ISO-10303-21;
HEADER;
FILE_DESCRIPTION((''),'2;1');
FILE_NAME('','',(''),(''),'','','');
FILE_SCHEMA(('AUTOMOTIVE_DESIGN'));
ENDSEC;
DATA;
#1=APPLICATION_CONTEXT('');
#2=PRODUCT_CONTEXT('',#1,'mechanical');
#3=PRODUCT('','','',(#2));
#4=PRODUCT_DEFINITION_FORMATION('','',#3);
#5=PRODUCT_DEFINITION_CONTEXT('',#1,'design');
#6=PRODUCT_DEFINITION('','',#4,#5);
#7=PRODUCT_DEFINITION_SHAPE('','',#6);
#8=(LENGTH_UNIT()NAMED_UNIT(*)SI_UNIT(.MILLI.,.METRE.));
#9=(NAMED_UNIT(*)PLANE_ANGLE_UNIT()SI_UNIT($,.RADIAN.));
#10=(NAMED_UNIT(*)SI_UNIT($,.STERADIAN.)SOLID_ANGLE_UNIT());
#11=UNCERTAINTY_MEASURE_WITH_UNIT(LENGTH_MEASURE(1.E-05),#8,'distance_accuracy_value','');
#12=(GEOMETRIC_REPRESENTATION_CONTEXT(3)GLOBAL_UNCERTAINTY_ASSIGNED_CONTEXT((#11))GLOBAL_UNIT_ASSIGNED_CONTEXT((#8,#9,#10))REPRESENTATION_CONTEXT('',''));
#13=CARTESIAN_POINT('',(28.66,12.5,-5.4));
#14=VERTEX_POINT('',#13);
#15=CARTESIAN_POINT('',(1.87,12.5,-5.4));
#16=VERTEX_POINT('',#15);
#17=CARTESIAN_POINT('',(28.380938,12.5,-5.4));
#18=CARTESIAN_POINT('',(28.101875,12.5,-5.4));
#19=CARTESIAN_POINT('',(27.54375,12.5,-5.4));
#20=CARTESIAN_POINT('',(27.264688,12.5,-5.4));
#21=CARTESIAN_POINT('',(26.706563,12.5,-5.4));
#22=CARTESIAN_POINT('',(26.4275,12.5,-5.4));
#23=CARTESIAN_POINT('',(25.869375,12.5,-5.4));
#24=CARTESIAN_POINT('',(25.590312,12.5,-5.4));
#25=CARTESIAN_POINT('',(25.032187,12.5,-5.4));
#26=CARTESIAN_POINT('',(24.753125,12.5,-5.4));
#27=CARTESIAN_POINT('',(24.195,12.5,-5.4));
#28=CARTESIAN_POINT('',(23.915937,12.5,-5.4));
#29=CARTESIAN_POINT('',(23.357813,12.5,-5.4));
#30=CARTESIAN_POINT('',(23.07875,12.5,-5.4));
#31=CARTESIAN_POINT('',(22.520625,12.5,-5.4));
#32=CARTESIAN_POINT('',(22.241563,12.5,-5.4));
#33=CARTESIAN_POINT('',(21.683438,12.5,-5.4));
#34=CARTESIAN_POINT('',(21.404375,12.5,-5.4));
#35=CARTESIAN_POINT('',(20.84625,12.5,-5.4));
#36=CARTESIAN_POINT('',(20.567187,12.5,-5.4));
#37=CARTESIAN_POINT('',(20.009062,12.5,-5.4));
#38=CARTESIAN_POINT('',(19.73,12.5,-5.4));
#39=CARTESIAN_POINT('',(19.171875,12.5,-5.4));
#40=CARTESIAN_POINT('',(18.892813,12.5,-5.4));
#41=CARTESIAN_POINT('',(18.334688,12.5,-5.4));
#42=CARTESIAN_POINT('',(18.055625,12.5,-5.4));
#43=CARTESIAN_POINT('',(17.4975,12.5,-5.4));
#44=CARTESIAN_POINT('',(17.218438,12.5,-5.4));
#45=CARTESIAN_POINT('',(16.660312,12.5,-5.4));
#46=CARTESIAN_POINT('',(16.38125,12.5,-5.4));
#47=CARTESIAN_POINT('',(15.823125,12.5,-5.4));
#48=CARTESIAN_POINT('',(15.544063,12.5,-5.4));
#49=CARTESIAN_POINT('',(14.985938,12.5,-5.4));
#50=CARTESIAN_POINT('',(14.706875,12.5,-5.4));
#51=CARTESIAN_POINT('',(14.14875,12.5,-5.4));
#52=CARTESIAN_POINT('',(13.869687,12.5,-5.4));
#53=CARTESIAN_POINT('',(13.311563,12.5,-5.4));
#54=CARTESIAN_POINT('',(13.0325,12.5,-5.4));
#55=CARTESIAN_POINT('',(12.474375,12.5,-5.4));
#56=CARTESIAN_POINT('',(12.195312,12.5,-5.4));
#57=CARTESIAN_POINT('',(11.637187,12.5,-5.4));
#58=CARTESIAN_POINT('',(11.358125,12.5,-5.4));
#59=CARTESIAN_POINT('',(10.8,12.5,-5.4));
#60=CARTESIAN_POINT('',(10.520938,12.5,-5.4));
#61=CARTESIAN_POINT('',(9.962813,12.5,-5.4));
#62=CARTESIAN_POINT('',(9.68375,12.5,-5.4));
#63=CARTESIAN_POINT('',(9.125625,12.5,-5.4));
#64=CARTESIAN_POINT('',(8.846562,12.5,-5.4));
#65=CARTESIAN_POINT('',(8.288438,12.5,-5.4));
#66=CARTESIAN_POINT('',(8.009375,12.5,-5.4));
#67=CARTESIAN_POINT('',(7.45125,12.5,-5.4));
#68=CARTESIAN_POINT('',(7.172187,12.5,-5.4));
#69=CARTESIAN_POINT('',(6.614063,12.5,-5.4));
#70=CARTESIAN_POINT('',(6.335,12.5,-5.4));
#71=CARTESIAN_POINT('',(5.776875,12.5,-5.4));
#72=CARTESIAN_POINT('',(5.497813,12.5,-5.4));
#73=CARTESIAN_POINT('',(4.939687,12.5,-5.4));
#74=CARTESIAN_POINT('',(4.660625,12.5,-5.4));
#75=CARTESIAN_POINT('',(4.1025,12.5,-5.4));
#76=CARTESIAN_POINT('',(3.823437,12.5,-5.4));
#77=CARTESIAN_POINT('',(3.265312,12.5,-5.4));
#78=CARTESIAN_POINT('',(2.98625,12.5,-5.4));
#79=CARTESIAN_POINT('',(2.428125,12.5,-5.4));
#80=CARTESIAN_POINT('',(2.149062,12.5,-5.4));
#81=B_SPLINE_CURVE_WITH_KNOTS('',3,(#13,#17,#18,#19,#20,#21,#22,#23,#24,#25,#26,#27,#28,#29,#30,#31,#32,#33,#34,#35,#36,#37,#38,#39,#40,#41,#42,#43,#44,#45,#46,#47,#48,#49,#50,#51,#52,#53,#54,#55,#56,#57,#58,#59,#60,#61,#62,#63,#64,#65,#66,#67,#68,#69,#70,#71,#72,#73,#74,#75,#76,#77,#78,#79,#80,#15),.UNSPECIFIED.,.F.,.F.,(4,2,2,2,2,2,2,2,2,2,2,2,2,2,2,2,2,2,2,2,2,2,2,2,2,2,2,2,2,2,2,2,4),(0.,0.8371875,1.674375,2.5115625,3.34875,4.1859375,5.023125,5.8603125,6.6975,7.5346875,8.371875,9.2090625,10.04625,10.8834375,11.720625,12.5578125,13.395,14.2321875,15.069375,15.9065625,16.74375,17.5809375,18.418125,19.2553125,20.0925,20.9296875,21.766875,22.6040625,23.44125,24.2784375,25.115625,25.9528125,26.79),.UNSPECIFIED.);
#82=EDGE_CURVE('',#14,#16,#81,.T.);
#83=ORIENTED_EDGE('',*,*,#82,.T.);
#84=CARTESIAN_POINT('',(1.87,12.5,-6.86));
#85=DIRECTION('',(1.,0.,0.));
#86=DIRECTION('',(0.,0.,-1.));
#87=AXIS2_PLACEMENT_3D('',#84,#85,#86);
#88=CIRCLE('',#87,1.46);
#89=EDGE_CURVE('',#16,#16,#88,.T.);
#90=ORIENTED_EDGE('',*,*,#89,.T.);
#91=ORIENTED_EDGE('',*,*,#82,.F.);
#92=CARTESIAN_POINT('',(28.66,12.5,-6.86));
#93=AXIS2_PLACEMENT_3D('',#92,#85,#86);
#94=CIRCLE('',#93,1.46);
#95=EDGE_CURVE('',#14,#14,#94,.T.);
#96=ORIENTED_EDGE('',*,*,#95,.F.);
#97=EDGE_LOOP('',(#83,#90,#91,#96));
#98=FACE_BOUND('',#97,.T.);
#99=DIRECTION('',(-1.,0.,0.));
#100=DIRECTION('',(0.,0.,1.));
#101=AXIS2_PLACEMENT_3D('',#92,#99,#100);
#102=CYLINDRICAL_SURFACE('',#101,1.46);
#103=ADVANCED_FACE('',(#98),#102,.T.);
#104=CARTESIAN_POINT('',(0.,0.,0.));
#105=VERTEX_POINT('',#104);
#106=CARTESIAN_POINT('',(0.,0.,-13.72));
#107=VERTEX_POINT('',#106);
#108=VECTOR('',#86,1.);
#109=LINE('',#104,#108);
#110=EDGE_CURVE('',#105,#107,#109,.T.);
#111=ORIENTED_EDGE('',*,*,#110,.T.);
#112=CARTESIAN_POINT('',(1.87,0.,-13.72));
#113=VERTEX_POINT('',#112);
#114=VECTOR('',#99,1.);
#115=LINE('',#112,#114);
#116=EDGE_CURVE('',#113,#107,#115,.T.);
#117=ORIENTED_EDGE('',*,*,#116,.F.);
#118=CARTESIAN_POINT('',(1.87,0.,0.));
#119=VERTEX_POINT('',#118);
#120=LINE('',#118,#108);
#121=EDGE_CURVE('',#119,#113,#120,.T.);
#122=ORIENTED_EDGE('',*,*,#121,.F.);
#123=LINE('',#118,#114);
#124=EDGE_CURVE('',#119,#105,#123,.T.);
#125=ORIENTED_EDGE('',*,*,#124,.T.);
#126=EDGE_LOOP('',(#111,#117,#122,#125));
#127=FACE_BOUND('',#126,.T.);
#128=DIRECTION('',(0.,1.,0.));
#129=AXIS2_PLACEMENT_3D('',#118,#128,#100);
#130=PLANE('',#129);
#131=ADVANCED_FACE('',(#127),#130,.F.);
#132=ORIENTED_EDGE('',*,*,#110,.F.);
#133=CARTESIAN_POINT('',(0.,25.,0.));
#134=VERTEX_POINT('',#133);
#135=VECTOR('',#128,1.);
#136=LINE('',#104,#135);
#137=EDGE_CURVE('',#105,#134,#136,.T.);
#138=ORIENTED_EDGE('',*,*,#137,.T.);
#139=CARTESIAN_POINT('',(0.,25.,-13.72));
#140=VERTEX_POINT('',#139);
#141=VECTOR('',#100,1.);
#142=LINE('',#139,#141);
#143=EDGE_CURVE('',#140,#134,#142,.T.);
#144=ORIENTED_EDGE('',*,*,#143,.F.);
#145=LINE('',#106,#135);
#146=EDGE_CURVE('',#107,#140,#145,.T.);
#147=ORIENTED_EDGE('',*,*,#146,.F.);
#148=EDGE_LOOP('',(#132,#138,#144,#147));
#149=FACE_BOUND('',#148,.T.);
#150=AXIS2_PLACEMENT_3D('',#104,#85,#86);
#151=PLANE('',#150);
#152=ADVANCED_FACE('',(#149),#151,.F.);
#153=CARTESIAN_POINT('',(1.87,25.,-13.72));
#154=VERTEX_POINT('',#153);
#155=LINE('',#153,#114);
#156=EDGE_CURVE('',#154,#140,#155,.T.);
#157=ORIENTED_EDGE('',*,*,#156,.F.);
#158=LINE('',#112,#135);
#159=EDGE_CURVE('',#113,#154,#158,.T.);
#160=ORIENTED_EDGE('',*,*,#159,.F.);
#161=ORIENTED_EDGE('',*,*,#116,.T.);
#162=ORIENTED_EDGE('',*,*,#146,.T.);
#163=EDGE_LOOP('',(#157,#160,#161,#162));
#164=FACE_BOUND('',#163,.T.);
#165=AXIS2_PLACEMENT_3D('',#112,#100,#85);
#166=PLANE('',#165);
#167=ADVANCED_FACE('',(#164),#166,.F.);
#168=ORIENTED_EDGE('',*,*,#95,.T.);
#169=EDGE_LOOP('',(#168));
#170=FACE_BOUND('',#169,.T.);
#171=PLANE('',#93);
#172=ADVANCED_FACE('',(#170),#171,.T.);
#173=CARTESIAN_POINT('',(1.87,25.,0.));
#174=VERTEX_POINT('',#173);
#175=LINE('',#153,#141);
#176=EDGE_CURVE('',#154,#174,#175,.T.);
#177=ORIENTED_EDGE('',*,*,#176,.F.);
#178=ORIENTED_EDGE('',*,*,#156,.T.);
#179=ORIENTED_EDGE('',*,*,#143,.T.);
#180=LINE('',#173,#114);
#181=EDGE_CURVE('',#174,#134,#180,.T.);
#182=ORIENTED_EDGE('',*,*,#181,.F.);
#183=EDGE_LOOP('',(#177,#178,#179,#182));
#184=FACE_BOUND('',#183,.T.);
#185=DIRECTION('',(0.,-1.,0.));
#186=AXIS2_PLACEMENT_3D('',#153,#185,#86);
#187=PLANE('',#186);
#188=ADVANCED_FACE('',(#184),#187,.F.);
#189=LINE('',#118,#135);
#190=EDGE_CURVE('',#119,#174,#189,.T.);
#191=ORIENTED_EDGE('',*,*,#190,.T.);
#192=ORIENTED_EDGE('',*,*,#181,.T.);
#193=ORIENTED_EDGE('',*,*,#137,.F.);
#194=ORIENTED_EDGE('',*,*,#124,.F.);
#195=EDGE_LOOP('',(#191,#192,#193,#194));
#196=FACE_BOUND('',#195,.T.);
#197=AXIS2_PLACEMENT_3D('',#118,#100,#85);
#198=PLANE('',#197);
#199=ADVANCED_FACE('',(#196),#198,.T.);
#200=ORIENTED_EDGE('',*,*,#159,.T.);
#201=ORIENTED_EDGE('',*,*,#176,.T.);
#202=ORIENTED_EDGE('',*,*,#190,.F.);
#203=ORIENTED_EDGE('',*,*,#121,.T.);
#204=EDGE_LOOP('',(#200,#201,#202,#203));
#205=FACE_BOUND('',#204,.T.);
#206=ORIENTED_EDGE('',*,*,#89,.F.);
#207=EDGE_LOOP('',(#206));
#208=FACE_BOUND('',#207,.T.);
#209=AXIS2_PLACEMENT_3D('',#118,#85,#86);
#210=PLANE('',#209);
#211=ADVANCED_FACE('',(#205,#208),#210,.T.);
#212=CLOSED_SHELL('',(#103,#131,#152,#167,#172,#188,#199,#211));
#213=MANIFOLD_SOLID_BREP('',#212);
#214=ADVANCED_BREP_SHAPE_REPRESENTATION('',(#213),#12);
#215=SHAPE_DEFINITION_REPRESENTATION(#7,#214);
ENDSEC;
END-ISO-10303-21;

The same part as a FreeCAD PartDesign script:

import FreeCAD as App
import Part
import Sketcher

V = App.Vector


def add_polygon(sketch, points):
    """Adds a closed chain of lines whose ends are joined by coincident constraints."""
    first, n = sketch.GeometryCount, len(points)
    for a, b in zip(points, points[1:] + points[:1]):
        sketch.addGeometry(Part.LineSegment(App.Vector(*a, 0), App.Vector(*b, 0)), False)
    for i in range(n):
        sketch.addConstraint(Sketcher.Constraint("Coincident", first + i, 2, first + (i + 1) % n, 1))

doc = App.newDocument("Part")
body = doc.addObject("PartDesign::Body", "Body")

# Sketch on YZ plane
sketch1 = doc.addObject("Sketcher::SketchObject", "Sketch")
body.addObject(sketch1)
sketch1.AttachmentSupport = (doc.YZ_Plane, [""])
sketch1.MapMode = "FlatFace"
add_polygon(sketch1, [(25, 0), (0, 0), (0, -13.72), (25, -13.72)])  # lines 0-3
sketch1.addConstraint([
    Sketcher.Constraint("Horizontal", 0),
    Sketcher.Constraint("Vertical", 1),
    Sketcher.Constraint("Horizontal", 2),
    Sketcher.Constraint("Vertical", 3),
    Sketcher.Constraint("Coincident", 0, 2, -1, 1),
    Sketcher.Constraint("DistanceX", 0, 2, 0, 1, 25.0),
    Sketcher.Constraint("DistanceY", 1, 2, 1, 1, 13.72),
])
pad1 = doc.addObject("PartDesign::Pad", "Pad")
body.addObject(pad1)
pad1.Profile = sketch1
pad1.Length = 1.87

# Sketch on YZ plane
sketch2 = doc.addObject("Sketcher::SketchObject", "Sketch001")
body.addObject(sketch2)
sketch2.AttachmentSupport = (doc.YZ_Plane, [""])
sketch2.MapMode = "FlatFace"
sketch2.AttachmentOffset = App.Placement(V(0, 0, 1.87), App.Rotation())
sketch2.addGeometry(Part.Circle(V(12.5, -6.86, 0), V(0, 0, 1), 1.46), False)
sketch2.addConstraint([
    Sketcher.Constraint("Diameter", 0, 2.92),
    Sketcher.Constraint("DistanceX", -1, 1, 0, 3, 12.5),
    Sketcher.Constraint("DistanceY", 0, 3, -1, 1, 6.86),
])
pad2 = doc.addObject("PartDesign::Pad", "Pad001")
body.addObject(pad2)
pad2.Profile = sketch2
pad2.Length = 26.79

doc.recompute()
